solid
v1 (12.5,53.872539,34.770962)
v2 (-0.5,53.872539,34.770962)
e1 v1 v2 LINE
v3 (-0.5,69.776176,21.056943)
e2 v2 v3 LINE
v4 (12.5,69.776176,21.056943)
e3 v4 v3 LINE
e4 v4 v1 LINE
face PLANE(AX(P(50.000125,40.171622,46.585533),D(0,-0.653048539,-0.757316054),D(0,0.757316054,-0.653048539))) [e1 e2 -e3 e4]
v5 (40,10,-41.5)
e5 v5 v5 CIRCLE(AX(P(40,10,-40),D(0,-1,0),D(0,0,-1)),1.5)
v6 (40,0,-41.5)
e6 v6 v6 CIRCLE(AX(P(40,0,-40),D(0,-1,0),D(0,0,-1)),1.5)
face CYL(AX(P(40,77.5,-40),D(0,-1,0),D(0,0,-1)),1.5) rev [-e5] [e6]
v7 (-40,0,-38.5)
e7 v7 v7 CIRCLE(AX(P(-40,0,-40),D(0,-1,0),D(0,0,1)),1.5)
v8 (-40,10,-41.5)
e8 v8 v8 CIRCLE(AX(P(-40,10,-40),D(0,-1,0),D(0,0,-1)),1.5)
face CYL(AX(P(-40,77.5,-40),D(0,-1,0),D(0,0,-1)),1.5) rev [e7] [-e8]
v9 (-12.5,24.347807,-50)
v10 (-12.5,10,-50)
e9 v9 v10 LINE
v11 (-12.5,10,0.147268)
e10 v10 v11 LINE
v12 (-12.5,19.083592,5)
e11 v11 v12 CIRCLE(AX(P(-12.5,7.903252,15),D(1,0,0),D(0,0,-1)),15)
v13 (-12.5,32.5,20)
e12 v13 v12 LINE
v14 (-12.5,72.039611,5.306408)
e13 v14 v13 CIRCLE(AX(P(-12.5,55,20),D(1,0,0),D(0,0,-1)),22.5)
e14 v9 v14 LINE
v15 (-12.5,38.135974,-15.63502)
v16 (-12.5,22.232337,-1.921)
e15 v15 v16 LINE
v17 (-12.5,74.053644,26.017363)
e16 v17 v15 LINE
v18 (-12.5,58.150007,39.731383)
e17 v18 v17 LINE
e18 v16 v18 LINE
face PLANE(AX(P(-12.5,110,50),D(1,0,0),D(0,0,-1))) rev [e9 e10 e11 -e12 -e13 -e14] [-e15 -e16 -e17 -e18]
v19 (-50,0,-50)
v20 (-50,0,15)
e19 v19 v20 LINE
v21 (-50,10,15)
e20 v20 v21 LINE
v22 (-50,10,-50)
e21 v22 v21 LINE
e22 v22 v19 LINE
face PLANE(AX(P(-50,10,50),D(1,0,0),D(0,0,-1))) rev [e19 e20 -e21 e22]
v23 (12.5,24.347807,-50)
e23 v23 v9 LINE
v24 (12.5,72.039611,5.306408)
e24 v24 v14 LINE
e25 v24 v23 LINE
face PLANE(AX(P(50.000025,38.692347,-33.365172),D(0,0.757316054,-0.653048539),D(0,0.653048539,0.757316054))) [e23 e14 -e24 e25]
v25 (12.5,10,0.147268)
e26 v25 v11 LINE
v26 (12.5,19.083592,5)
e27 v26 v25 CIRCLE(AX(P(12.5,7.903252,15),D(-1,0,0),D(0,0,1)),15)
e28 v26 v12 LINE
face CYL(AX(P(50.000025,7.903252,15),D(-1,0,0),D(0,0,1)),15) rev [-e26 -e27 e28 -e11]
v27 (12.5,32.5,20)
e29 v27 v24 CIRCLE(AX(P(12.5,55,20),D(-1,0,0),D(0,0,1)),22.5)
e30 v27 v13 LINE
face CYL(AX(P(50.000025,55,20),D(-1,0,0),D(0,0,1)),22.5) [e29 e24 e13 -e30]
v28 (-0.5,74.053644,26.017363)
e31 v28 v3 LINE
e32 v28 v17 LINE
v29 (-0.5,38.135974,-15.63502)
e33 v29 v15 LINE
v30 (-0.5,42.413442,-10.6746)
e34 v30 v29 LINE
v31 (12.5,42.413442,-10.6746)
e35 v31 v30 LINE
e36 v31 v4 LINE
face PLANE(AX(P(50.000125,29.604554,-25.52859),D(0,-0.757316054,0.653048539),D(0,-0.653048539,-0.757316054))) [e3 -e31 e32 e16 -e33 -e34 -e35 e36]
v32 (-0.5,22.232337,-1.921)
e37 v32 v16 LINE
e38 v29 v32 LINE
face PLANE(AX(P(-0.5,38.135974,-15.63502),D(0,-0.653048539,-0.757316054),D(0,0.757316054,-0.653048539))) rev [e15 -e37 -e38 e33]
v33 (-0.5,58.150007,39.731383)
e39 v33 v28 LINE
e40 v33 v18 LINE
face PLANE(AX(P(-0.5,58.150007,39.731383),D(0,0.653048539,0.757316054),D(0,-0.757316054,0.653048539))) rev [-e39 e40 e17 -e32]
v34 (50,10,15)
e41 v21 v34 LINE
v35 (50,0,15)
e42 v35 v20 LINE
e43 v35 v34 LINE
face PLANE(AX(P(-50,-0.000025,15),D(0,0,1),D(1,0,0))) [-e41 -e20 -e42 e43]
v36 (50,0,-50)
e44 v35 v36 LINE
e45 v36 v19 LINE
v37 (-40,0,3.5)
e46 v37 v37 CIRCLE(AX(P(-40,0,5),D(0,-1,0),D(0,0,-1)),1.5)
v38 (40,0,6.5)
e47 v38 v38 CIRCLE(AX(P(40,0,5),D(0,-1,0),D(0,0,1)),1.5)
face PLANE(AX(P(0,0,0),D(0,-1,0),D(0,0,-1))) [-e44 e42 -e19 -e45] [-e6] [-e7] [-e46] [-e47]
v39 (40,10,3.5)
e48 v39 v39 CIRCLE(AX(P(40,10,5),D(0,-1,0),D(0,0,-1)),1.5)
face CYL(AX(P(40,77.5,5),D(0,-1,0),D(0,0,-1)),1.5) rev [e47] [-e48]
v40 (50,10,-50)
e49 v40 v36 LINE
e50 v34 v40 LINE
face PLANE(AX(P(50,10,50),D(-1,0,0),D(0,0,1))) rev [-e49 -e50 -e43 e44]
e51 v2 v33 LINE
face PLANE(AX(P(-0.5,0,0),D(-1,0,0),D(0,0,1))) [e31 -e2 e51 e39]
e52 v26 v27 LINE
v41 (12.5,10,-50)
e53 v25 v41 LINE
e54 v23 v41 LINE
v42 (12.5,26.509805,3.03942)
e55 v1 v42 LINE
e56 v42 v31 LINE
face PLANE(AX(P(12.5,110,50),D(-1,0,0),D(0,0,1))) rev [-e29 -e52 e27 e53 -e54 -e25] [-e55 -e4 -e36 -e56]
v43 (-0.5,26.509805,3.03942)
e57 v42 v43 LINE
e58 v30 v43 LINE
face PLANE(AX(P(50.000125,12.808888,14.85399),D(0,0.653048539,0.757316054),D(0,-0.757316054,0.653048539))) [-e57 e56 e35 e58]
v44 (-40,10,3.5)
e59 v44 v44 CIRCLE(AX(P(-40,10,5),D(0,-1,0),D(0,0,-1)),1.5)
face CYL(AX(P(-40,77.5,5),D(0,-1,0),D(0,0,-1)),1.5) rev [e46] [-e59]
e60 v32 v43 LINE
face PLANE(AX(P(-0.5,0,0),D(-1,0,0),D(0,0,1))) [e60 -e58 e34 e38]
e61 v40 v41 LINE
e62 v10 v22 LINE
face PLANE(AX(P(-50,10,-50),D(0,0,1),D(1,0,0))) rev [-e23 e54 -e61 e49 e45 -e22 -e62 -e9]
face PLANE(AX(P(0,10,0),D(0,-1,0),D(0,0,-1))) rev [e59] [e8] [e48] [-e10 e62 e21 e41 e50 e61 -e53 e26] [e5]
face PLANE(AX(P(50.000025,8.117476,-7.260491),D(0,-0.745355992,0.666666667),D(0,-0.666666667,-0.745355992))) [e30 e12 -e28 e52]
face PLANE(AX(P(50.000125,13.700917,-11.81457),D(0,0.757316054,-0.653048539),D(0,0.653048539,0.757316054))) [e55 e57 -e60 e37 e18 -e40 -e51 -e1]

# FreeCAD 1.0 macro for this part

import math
import FreeCAD as App
import Part
import Sketcher
from FreeCAD import Vector
Q = App.Units.Quantity


def add_polygon(sketch, points):
    """Adds a closed chain of lines whose ends are joined by coincident constraints."""
    first, n = sketch.GeometryCount, len(points)
    for a, b in zip(points, points[1:] + points[:1]):
        sketch.addGeometry(Part.LineSegment(App.Vector(*a, 0), App.Vector(*b, 0)), False)
    for i in range(n):
        sketch.addConstraint(Sketcher.Constraint("Coincident", first + i, 2, first + (i + 1) % n, 1))

doc = App.newDocument("Part")
body = doc.addObject("PartDesign::Body", "Body")

# Sketch on XZ plane
sketch1 = body.newObject("Sketcher::SketchObject", "Sketch")
sketch1.AttachmentSupport = (doc.getObject("XZ_Plane"), [""])
sketch1.MapMode = "FlatFace"
add_polygon(sketch1, [(-50, -50), (-50, 50), (50, 50), (50, -50)])  # lines 0-3
sketch1.addConstraint(Sketcher.Constraint("Vertical", 0))
sketch1.addConstraint(Sketcher.Constraint("Horizontal", 1))
sketch1.addConstraint(Sketcher.Constraint("Vertical", 2))
sketch1.addConstraint(Sketcher.Constraint("Horizontal", 3))
sketch1.addConstraint(Sketcher.Constraint("Symmetric", 0, 2, 2, 2, -1, 1))
sketch1.addConstraint(Sketcher.Constraint("Equal", 3, 0))
sketch1.addConstraint(Sketcher.Constraint("DistanceX", 1, 1, 1, 2, Q("100 mm")))
pad1 = body.newObject("PartDesign::Pad", "Pad")
pad1.Profile = sketch1
pad1.Length = 10
pad1.Reversed = True

# Sketch on XZ plane
sketch2 = body.newObject("Sketcher::SketchObject", "Sketch001")
sketch2.AttachmentSupport = (doc.getObject("XZ_Plane"), [""])
sketch2.MapMode = "FlatFace"
sketch2.AttachmentOffset = App.Placement(Vector(0, 0, -10), App.Rotation())
add_polygon(sketch2, [(-12, -50), (-12, 50), (12, 50), (12, -50)])  # lines 0-3
sketch2.addConstraint(Sketcher.Constraint("Vertical", 0))
sketch2.addConstraint(Sketcher.Constraint("Horizontal", 1))
sketch2.addConstraint(Sketcher.Constraint("Vertical", 2))
sketch2.addConstraint(Sketcher.Constraint("Horizontal", 3))
sketch2.addConstraint(Sketcher.Constraint("Symmetric", 0, 2, 2, 2, -1, 1))
sketch2.addConstraint(Sketcher.Constraint("DistanceX", 1, 1, 1, 2, Q("25 mm")))
sketch2.addConstraint(Sketcher.Constraint("DistanceY", 0, 1, 0, 2, Q("100 mm")))
pad2 = body.newObject("PartDesign::Pad", "Pad001")
pad2.Profile = sketch2
pad2.Length = 100
pad2.Reversed = True

# Sketch on YZ plane
sketch3 = body.newObject("Sketcher::SketchObject", "Sketch002")
sketch3.AttachmentSupport = (doc.getObject("YZ_Plane"), [""])
sketch3.MapMode = "FlatFace"
sketch3.AttachmentOffset = App.Placement(Vector(0, 0, -12.5), App.Rotation())
sketch3.addGeometry(Part.ArcOfCircle(Part.Circle(Vector(8, 15, 0), Vector(0, 0, 1), 15), math.radians(-82), math.radians(-42)), False)
sketch3.addGeometry(Part.LineSegment(Vector(10, 0, 0), Vector(10, 50, 0)), False)
sketch3.addGeometry(Part.LineSegment(Vector(10, 50, 0), Vector(110, 50, 0)), False)
sketch3.addGeometry(Part.LineSegment(Vector(110, 50, 0), Vector(110, -50, 0)), False)
sketch3.addGeometry(Part.LineSegment(Vector(110, -50, 0), Vector(24, -50, 0)), False)
sketch3.addGeometry(Part.LineSegment(Vector(24, -50, 0), Vector(72, 5, 0)), False)
sketch3.addGeometry(Part.ArcOfCircle(Part.Circle(Vector(55, 20, 0), Vector(0, 0, 1), 22), math.radians(-41), math.radians(90)), False)
sketch3.addGeometry(Part.ArcOfCircle(Part.Circle(Vector(55, 20, 0), Vector(0, 0, 1), 22), math.radians(90), math.radians(180)), False)
sketch3.addGeometry(Part.LineSegment(Vector(32, 20, 0), Vector(19, 5, 0)), False)
sketch3.addConstraint(Sketcher.Constraint("Coincident", 0, 1, 1, 1))
sketch3.addConstraint(Sketcher.Constraint("Coincident", 1, 2, 2, 1))
sketch3.addConstraint(Sketcher.Constraint("Coincident", 2, 2, 3, 1))
sketch3.addConstraint(Sketcher.Constraint("Coincident", 3, 2, 4, 1))
sketch3.addConstraint(Sketcher.Constraint("Coincident", 4, 2, 5, 1))
sketch3.addConstraint(Sketcher.Constraint("Tangent", 5, 2, 6, 1))
sketch3.addConstraint(Sketcher.Constraint("Tangent", 6, 2, 7, 1))
sketch3.addConstraint(Sketcher.Constraint("Coincident", 7, 2, 8, 1))
sketch3.addConstraint(Sketcher.Constraint("Tangent", 8, 2, 0, 2))
sketch3.addConstraint(Sketcher.Constraint("Vertical", 1))
sketch3.addConstraint(Sketcher.Constraint("Horizontal", 2))
sketch3.addConstraint(Sketcher.Constraint("Vertical", 3))
sketch3.addConstraint(Sketcher.Constraint("Horizontal", 4))
sketch3.addConstraint(Sketcher.Constraint("Equal", 6, 7))
sketch3.addConstraint(Sketcher.Constraint("Horizontal", 6, 3, 7, 2))
sketch3.addConstraint(Sketcher.Constraint("Vertical", 7, 3, 6, 2))
sketch3.addConstraint(Sketcher.Constraint("Equal", 2, 3))
sketch3.addConstraint(Sketcher.Constraint("Radius", 0, Q("15 mm")))
sketch3.addConstraint(Sketcher.Constraint("Radius", 6, Q("22.5 mm")))
sketch3.addConstraint(Sketcher.Constraint("DistanceX", 2, 1, 2, 2, Q("100 mm")))
sketch3.addConstraint(Sketcher.Constraint("DistanceY", -1, 1, 0, 3, Q("15 mm")))
sketch3.addConstraint(Sketcher.Constraint("DistanceX", -1, 1, 6, 3, Q("55 mm")))
sketch3.addConstraint(Sketcher.Constraint("DistanceY", -1, 1, 6, 3, Q("20 mm")))
sketch3.addConstraint(Sketcher.Constraint("DistanceX", -1, 1, 0, 1, Q("10 mm")))
sketch3.addConstraint(Sketcher.Constraint("DistanceY", -1, 1, 1, 2, Q("50 mm")))
sketch3.addConstraint(Sketcher.Constraint("DistanceY", -1, 1, 8, 2, Q("5 mm")))
sketch3.addConstraint(Sketcher.Constraint("DistanceX", 4, 2, 4, 1, Q("85.652193 mm")))
pocket1 = body.newObject("PartDesign::Pocket", "Pocket")
pocket1.Profile = sketch3
pocket1.Type = "ThroughAll"
pocket1.Midplane = True

# Sketch on YZ plane
sketch4 = body.newObject("Sketcher::SketchObject", "Sketch003")
sketch4.AttachmentSupport = (doc.getObject("YZ_Plane"), [""])
sketch4.MapMode = "FlatFace"
sketch4.AttachmentOffset = App.Placement(Vector(0, 0, -12.5), App.Rotation())
add_polygon(sketch4, [(42, -11), (27, 3), (54, 35), (70, 21)])  # lines 0-3
sketch4.addConstraint(Sketcher.Constraint("Perpendicular", 0, 1))
sketch4.addConstraint(Sketcher.Constraint("Perpendicular", 1, 2))
sketch4.addConstraint(Sketcher.Constraint("Perpendicular", 2, 3))
sketch4.addConstraint(Sketcher.Constraint("Distance", 0, Q("21 mm")))
sketch4.addConstraint(Sketcher.Constraint("Distance", 1, Q("41.9 mm")))
sketch4.addConstraint(Sketcher.Constraint("DistanceY", 3, 2, -1, 1, Q("10.6746 mm")))
sketch4.addConstraint(Sketcher.Constraint("DistanceY", -1, 1, 0, 2, Q("3.03942 mm")))
sketch4.addConstraint(Sketcher.Constraint("DistanceX", -1, 1, 1, 2, Q("53.872539 mm")))
pocket2 = body.newObject("PartDesign::Pocket", "Pocket001")
pocket2.Profile = sketch4
pocket2.Type = "ThroughAll"
pocket2.Midplane = True

# Sketch on YZ plane
sketch5 = body.newObject("Sketcher::SketchObject", "Sketch004")
sketch5.AttachmentSupport = (doc.getObject("YZ_Plane"), [""])
sketch5.MapMode = "FlatFace"
sketch5.AttachmentOffset = App.Placement(Vector(0, 0, -12.5), App.Rotation())
add_polygon(sketch5, [(38, -16), (22, -2), (58, 40), (74, 26)])  # lines 0-3
sketch5.addConstraint(Sketcher.Constraint("Perpendicular", 0, 1))
sketch5.addConstraint(Sketcher.Constraint("Perpendicular", 1, 2))
sketch5.addConstraint(Sketcher.Constraint("Perpendicular", 2, 3))
sketch5.addConstraint(Sketcher.Constraint("Distance", 0, Q("21 mm")))
sketch5.addConstraint(Sketcher.Constraint("Distance", 1, Q("55 mm")))
sketch5.addConstraint(Sketcher.Constraint("DistanceY", 0, 2, -1, 1, Q("1.921 mm")))
sketch5.addConstraint(Sketcher.Constraint("DistanceY", 3, 2, -1, 1, Q("15.63502 mm")))
sketch5.addConstraint(Sketcher.Constraint("DistanceX", -1, 1, 0, 2, Q("22.232337 mm")))
pocket3 = body.newObject("PartDesign::Pocket", "Pocket002")
pocket3.Profile = sketch5
pocket3.Length = 12
pocket3.Reversed = True

# Sketch on XZ plane
sketch6 = body.newObject("Sketcher::SketchObject", "Sketch005")
sketch6.AttachmentSupport = (doc.getObject("XZ_Plane"), [""])
sketch6.MapMode = "FlatFace"
add_polygon(sketch6, [(-50, 50), (-50, 15), (50, 15), (50, 50)])  # lines 0-3
sketch6.addConstraint(Sketcher.Constraint("Vertical", 0))
sketch6.addConstraint(Sketcher.Constraint("Horizontal", 1))
sketch6.addConstraint(Sketcher.Constraint("Vertical", 2))
sketch6.addConstraint(Sketcher.Constraint("Horizontal", 3))
sketch6.addConstraint(Sketcher.Constraint("DistanceX", 1, 1, 1, 2, Q("100 mm")))
sketch6.addConstraint(Sketcher.Constraint("DistanceY", 0, 2, 0, 1, Q("35 mm")))
sketch6.addConstraint(Sketcher.Constraint("DistanceX", 0, 2, -1, 1, Q("50 mm")))
sketch6.addConstraint(Sketcher.Constraint("DistanceY", -1, 1, 0, 2, Q("15 mm")))
pocket4 = body.newObject("PartDesign::Pocket", "Pocket003")
pocket4.Profile = sketch6
pocket4.Type = "TwoLengths"
pocket4.Length = 105.910676
pocket4.Length2 = 10
pocket4.Reversed = True

# Sketch on XZ plane
sketch7 = body.newObject("Sketcher::SketchObject", "Sketch006")
sketch7.AttachmentSupport = (doc.getObject("XZ_Plane"), [""])
sketch7.MapMode = "FlatFace"
sketch7.addGeometry(Part.Circle(Vector(-40, 5, 0), Vector(0, 0, 1), 1.5), False)
sketch7.addGeometry(Part.Circle(Vector(40, 5, 0), Vector(0, 0, 1), 1.5), False)
sketch7.addGeometry(Part.Circle(Vector(40, -40, 0), Vector(0, 0, 1), 1.5), False)
sketch7.addGeometry(Part.Circle(Vector(-40, -40, 0), Vector(0, 0, 1), 1.5), False)
sketch7.addConstraint(Sketcher.Constraint("Equal", 0, 1))
sketch7.addConstraint(Sketcher.Constraint("Equal", 1, 2))
sketch7.addConstraint(Sketcher.Constraint("Equal", 2, 3))
sketch7.addConstraint(Sketcher.Constraint("Symmetric", 0, 3, 1, 3, -2))
sketch7.addConstraint(Sketcher.Constraint("Symmetric", 2, 3, 3, 3, -2))
sketch7.addConstraint(Sketcher.Constraint("Vertical", 1, 3, 2, 3))
sketch7.addConstraint(Sketcher.Constraint("Diameter", 0, Q("3 mm")))
sketch7.addConstraint(Sketcher.Constraint("DistanceX", 0, 3, -1, 1, Q("40 mm")))
sketch7.addConstraint(Sketcher.Constraint("DistanceY", -1, 1, 0, 3, Q("5 mm")))
sketch7.addConstraint(Sketcher.Constraint("DistanceY", 2, 3, -1, 1, Q("40 mm")))
pocket5 = body.newObject("PartDesign::Pocket", "Pocket004")
pocket5.Profile = sketch7
pocket5.Type = "ThroughAll"

doc.recompute()
